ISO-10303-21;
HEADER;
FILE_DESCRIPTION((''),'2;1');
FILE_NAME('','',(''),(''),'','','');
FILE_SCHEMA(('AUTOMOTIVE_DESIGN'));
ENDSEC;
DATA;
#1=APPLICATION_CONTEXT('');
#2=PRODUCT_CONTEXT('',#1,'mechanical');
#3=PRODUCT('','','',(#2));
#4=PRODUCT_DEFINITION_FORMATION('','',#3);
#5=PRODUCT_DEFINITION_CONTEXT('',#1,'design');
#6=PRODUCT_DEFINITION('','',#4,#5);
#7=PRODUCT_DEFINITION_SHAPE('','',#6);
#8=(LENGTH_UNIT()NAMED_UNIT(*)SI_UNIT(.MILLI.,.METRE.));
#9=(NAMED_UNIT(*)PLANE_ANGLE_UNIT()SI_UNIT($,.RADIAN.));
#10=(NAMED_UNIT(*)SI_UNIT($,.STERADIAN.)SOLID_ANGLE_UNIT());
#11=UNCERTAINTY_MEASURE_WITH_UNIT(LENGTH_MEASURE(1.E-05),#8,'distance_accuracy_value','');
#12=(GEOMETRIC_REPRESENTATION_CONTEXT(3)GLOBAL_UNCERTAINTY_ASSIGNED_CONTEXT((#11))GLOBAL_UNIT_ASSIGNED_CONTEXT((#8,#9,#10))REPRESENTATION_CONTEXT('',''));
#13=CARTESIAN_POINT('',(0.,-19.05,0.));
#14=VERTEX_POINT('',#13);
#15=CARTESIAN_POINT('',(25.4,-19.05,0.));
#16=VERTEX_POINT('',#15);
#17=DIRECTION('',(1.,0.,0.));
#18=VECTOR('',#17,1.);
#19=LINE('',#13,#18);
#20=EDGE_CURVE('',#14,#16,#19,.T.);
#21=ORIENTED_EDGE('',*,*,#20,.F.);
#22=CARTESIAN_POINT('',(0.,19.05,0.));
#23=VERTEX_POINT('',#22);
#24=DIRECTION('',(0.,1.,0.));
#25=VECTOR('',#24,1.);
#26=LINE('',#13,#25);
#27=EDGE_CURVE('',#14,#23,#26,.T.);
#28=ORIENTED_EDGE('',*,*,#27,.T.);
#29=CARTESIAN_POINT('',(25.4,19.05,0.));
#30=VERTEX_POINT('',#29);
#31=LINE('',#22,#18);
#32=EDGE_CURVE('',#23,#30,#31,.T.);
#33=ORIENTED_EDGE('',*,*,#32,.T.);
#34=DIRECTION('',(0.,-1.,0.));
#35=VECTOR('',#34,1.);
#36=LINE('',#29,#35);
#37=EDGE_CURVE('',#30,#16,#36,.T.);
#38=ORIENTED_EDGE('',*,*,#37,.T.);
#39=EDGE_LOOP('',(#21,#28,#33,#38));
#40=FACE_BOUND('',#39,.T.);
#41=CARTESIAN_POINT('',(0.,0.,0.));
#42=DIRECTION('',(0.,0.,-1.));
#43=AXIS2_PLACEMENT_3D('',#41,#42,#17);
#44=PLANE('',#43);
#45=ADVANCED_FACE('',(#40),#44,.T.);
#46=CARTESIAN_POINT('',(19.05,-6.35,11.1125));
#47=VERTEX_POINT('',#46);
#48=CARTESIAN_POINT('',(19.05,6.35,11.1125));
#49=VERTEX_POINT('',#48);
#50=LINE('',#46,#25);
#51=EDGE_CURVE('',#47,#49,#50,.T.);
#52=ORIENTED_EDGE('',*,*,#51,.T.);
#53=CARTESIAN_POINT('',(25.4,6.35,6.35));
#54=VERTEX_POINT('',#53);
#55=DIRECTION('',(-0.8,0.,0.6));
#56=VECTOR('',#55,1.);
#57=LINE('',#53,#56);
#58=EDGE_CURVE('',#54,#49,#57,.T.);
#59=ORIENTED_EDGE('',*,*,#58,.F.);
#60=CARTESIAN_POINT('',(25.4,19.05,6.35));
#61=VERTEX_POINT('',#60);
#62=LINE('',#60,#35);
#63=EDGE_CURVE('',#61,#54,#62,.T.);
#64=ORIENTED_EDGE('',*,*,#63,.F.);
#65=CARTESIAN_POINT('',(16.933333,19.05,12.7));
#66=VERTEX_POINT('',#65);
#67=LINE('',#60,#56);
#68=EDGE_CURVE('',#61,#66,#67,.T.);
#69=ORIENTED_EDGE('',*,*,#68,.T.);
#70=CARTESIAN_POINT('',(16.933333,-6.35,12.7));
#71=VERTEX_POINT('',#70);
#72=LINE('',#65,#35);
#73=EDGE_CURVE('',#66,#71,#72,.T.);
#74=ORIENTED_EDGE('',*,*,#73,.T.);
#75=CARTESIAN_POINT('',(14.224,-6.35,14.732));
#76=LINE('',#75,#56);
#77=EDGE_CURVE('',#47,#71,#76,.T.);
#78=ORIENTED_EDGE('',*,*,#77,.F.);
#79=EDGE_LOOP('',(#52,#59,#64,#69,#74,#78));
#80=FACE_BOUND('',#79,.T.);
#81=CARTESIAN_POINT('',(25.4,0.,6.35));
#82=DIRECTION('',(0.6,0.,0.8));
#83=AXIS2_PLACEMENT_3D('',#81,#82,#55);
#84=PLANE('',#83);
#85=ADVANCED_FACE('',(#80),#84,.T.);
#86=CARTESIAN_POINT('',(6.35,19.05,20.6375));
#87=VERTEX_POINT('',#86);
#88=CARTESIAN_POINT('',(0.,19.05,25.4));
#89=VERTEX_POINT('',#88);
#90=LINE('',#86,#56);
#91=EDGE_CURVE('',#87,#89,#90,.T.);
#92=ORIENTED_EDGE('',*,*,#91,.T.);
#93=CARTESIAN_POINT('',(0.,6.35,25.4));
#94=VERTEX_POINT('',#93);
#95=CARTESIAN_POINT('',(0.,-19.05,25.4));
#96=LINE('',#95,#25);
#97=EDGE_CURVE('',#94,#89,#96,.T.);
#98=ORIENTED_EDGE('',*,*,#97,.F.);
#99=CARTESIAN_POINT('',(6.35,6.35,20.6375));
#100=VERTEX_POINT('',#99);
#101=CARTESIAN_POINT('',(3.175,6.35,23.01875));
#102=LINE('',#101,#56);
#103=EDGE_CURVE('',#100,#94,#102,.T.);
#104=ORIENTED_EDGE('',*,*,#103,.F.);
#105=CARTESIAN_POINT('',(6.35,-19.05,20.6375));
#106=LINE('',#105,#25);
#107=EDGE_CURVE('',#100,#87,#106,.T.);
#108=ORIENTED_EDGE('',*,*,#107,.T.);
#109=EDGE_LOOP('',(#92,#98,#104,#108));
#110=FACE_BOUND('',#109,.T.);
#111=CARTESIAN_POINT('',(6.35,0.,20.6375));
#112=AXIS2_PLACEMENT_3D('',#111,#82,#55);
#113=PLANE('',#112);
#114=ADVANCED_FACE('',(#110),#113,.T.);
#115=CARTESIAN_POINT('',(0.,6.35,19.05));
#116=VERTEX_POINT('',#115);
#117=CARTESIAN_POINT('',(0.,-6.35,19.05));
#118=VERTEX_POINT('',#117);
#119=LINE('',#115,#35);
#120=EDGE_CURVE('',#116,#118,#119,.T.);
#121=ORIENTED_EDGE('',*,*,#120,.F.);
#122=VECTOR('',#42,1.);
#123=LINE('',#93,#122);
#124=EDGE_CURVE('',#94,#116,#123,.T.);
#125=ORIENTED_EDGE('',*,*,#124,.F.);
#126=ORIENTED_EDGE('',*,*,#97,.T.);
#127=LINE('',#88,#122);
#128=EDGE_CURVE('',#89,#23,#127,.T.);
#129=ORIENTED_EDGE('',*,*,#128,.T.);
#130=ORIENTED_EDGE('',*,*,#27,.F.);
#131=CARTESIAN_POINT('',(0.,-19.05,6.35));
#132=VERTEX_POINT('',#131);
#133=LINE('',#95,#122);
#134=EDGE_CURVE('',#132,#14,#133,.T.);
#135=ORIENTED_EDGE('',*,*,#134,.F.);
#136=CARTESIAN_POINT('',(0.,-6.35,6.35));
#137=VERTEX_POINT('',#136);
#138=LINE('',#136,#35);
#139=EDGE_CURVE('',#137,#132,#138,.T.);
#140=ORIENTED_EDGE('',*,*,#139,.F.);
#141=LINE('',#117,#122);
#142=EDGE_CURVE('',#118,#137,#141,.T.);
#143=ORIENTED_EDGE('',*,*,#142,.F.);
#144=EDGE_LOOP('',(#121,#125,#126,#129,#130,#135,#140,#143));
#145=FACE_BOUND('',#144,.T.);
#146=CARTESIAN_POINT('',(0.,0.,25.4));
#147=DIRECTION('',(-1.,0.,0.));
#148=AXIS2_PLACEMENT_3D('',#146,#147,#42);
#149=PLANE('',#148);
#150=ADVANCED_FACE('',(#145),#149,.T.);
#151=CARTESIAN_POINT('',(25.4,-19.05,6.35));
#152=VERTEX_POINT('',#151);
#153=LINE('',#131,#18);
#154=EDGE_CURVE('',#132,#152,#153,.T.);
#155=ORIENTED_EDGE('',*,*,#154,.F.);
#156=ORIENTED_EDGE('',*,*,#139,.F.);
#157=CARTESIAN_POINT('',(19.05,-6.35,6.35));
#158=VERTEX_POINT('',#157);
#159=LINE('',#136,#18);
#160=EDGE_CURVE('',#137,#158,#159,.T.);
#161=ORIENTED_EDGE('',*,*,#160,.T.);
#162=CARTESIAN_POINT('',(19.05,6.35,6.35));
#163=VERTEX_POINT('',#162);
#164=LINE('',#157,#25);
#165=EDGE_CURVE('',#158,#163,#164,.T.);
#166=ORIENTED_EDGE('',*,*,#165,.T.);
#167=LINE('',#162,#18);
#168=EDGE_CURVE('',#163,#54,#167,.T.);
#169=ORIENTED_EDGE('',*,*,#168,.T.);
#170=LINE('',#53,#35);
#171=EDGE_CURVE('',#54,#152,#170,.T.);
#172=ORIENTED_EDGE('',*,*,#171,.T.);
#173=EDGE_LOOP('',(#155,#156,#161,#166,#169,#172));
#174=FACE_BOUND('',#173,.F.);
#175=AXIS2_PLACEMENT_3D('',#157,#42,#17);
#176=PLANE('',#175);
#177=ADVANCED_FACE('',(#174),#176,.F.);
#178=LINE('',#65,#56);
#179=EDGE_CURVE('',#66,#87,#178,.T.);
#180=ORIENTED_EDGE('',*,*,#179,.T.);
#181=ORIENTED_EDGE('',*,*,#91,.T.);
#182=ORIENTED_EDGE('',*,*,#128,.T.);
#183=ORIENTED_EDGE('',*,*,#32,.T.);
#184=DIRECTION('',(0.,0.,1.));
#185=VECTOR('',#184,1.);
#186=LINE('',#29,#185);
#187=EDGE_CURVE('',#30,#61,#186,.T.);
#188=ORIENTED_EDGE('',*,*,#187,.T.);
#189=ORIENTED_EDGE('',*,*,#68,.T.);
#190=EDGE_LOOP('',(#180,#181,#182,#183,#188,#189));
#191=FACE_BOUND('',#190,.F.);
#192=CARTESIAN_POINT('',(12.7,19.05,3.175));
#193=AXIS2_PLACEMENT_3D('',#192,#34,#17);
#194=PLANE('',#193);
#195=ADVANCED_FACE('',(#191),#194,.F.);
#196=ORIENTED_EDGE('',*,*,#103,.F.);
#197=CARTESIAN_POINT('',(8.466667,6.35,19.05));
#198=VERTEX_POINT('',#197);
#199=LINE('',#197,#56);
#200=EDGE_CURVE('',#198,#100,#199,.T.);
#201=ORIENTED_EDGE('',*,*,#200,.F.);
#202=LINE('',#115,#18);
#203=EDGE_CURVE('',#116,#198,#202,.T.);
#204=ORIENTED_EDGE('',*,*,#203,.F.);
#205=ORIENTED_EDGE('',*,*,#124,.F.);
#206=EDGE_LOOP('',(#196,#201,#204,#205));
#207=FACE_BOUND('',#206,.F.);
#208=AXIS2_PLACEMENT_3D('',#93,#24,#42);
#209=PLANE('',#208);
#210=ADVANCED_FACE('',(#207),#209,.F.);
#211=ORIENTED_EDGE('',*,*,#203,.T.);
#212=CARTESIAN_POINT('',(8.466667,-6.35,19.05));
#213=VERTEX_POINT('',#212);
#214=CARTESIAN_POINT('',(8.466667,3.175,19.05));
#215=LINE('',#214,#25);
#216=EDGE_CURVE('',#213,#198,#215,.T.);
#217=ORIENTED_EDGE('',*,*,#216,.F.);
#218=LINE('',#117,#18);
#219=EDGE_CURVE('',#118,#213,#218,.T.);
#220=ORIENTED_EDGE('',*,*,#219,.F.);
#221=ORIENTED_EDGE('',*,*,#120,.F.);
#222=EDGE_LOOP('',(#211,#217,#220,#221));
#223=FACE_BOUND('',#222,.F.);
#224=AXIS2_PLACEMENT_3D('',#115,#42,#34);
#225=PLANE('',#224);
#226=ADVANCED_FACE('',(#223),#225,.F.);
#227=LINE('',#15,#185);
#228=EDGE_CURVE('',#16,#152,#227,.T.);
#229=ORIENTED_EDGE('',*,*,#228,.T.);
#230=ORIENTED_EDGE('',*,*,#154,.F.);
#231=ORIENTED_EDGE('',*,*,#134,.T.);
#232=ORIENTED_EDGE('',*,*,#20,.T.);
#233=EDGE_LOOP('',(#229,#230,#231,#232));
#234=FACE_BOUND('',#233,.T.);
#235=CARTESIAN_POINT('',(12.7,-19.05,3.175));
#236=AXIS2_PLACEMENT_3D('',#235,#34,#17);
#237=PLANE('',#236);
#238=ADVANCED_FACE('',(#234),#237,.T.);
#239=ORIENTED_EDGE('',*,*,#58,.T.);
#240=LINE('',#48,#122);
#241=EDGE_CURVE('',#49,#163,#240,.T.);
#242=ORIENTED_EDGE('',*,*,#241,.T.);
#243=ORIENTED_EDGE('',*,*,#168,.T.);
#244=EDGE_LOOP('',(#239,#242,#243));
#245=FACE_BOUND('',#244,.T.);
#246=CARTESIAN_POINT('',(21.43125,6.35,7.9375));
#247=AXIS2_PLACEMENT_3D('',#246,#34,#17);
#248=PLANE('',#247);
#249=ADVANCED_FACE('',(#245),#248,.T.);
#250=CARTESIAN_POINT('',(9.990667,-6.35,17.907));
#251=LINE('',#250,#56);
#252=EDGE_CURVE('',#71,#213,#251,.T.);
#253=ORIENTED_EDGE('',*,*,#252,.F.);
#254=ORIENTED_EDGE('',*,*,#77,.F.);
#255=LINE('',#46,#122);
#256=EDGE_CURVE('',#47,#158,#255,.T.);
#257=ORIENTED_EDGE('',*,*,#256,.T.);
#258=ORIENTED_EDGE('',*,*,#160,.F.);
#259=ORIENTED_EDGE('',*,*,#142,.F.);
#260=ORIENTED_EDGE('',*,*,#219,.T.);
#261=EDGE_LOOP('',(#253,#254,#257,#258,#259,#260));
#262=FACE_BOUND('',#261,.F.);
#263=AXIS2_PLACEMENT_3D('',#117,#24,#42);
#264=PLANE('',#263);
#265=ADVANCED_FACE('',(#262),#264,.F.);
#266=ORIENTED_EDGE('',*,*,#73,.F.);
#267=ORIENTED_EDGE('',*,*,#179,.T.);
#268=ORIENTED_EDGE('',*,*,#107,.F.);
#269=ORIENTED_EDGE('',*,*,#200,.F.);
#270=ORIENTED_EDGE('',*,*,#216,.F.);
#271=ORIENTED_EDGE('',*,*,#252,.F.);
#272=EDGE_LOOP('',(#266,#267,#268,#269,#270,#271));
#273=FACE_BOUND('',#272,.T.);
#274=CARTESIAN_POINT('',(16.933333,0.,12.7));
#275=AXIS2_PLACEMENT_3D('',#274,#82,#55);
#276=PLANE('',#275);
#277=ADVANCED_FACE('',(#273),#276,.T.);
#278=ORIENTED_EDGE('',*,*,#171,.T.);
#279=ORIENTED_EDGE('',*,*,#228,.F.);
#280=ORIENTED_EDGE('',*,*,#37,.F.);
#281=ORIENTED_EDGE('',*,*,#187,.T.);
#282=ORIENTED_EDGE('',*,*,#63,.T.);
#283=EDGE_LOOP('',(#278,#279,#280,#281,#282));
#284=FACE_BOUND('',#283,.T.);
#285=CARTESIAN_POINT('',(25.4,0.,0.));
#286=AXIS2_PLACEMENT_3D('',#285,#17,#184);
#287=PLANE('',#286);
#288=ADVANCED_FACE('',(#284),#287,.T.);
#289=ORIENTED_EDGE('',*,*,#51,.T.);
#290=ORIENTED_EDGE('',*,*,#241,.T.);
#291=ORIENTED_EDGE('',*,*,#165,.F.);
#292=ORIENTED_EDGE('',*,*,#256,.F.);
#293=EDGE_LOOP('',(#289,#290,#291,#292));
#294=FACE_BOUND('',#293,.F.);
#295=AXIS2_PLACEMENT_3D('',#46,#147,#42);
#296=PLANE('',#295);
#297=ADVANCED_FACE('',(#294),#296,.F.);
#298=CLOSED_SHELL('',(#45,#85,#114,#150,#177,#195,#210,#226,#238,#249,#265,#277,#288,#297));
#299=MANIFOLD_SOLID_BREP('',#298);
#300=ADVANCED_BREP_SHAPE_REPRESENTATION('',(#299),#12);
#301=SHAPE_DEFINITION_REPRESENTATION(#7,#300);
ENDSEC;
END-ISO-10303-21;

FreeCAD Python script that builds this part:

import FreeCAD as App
import Part
import Sketcher
Q = App.Units.Quantity

doc = App.newDocument("Part")
body = doc.addObject("PartDesign::Body", "Body")

# Sketch on XZ plane
sketch1 = body.newObject("Sketcher::SketchObject", "Sketch")
sketch1.AttachmentSupport = (doc.getObject("XZ_Plane"), [""])
sketch1.MapMode = "FlatFace"
sketch1.addGeometry([
    Part.LineSegment(App.Vector(0, 0, 0), App.Vector(25, 0, 0)),  # 0
    Part.LineSegment(App.Vector(25, 0, 0), App.Vector(25, 6, 0)),  # 1
    Part.LineSegment(App.Vector(25, 6, 0), App.Vector(17, 13, 0)),  # 2
    Part.LineSegment(App.Vector(17, 13, 0), App.Vector(6, 21, 0)),  # 3
    Part.LineSegment(App.Vector(6, 21, 0), App.Vector(0, 25, 0)),  # 4
    Part.LineSegment(App.Vector(0, 25, 0), App.Vector(0, 0, 0)),  # 5
], False)
sketch1.addConstraint([
    Sketcher.Constraint("Coincident", 0, 2, 1, 1),
    Sketcher.Constraint("Coincident", 1, 2, 2, 1),
    Sketcher.Constraint("Coincident", 2, 2, 3, 1),
    Sketcher.Constraint("Coincident", 3, 2, 4, 1),
    Sketcher.Constraint("Coincident", 4, 2, 5, 1),
    Sketcher.Constraint("Coincident", 5, 2, 0, 1),
    Sketcher.Constraint("Horizontal", 0),
    Sketcher.Constraint("Vertical", 1),
    Sketcher.Constraint("Vertical", 5),
    Sketcher.Constraint("Coincident", 5, 2, -1, 1),
    Sketcher.Constraint("Parallel", 2, 3),
    Sketcher.Constraint("Parallel", 3, 4),
    Sketcher.Constraint("Equal", 0, 5),
    Sketcher.Constraint("DistanceX", 0, 1, 0, 2, Q("1 in")),
    Sketcher.Constraint("DistanceY", 1, 1, 1, 2, Q("0.25 in")),
    Sketcher.Constraint("DistanceY", -1, 1, 2, 2, Q("0.5 in")),
    Sketcher.Constraint("DistanceX", -1, 1, 3, 2, Q("0.25 in")),
])
pad1 = body.newObject("PartDesign::Pad", "Pad")
pad1.Profile = sketch1
pad1.Length = Q("1.5 in")
pad1.Midplane = True

# Sketch on YZ plane
sketch2 = body.newObject("Sketcher::SketchObject", "Sketch001")
sketch2.AttachmentSupport = (doc.getObject("YZ_Plane"), [""])
sketch2.MapMode = "FlatFace"
sketch2.addGeometry([
    Part.LineSegment(App.Vector(-6, 6, 0), App.Vector(-19, 6, 0)),  # 0
    Part.LineSegment(App.Vector(-19, 6, 0), App.Vector(-19, 25, 0)),  # 1
    Part.LineSegment(App.Vector(-19, 25, 0), App.Vector(6, 25, 0)),  # 2
    Part.LineSegment(App.Vector(6, 25, 0), App.Vector(6, 19, 0)),  # 3
    Part.LineSegment(App.Vector(6, 19, 0), App.Vector(-6, 19, 0)),  # 4
    Part.LineSegment(App.Vector(-6, 19, 0), App.Vector(-6, 6, 0)),  # 5
], False)
sketch2.addConstraint([
    Sketcher.Constraint("Coincident", 0, 2, 1, 1),
    Sketcher.Constraint("Coincident", 1, 2, 2, 1),
    Sketcher.Constraint("Coincident", 2, 2, 3, 1),
    Sketcher.Constraint("Coincident", 3, 2, 4, 1),
    Sketcher.Constraint("Coincident", 4, 2, 5, 1),
    Sketcher.Constraint("Coincident", 5, 2, 0, 1),
    Sketcher.Constraint("Horizontal", 0),
    Sketcher.Constraint("Vertical", 1),
    Sketcher.Constraint("Horizontal", 2),
    Sketcher.Constraint("Vertical", 3),
    Sketcher.Constraint("Horizontal", 4),
    Sketcher.Constraint("Vertical", 5),
    Sketcher.Constraint("Equal", 0, 4),
    Sketcher.Constraint("Equal", 4, 5),
    Sketcher.Constraint("DistanceX", 2, 1, 2, 2, Q("1 in")),
    Sketcher.Constraint("DistanceY", -1, 1, 1, 2, Q("1 in")),
    Sketcher.Constraint("DistanceY", 1, 1, 1, 2, Q("0.75 in")),
    Sketcher.Constraint("DistanceX", 0, 2, -1, 1, Q("0.75 in")),
])
pocket1 = body.newObject("PartDesign::Pocket", "Pocket")
pocket1.Profile = sketch2
pocket1.Type = "ThroughAll"
pocket1.Reversed = True

# Sketch on XZ plane
sketch3 = body.newObject("Sketcher::SketchObject", "Sketch002")
sketch3.AttachmentSupport = (doc.getObject("XZ_Plane"), [""])
sketch3.MapMode = "FlatFace"
sketch3.AttachmentOffset = App.Placement(App.Vector(0, 0, 0.25 * 25.4), App.Rotation())
sketch3.addGeometry([
    Part.LineSegment(App.Vector(19.1, 6.3, 0), App.Vector(25.4, 6.3, 0)),
    Part.LineSegment(App.Vector(25.4, 6.3, 0), App.Vector(19.1, 11.1, 0)),
    Part.LineSegment(App.Vector(19.1, 11.1, 0), App.Vector(19.1, 6.3, 0)),
], False)
sketch3.addConstraint([
    Sketcher.Constraint("Coincident", 0, 2, 1, 1),
    Sketcher.Constraint("Coincident", 1, 2, 2, 1),
    Sketcher.Constraint("Coincident", 2, 2, 0, 1),
    Sketcher.Constraint("Horizontal", 0),
    Sketcher.Constraint("Vertical", 2),
    Sketcher.Constraint("DistanceX", -1, 1, 0, 2, Q("1 in")),
    Sketcher.Constraint("DistanceX", 0, 1, 0, 2, Q("0.25 in")),
    Sketcher.Constraint("DistanceY", 2, 2, 2, 1, Q("0.1875 in")),
    Sketcher.Constraint("DistanceY", -1, 1, 0, 2, Q("0.25 in")),
])
pocket2 = body.newObject("PartDesign::Pocket", "Pocket001")
pocket2.Profile = sketch3
pocket2.Length = Q("0.5 in")

doc.recompute()
